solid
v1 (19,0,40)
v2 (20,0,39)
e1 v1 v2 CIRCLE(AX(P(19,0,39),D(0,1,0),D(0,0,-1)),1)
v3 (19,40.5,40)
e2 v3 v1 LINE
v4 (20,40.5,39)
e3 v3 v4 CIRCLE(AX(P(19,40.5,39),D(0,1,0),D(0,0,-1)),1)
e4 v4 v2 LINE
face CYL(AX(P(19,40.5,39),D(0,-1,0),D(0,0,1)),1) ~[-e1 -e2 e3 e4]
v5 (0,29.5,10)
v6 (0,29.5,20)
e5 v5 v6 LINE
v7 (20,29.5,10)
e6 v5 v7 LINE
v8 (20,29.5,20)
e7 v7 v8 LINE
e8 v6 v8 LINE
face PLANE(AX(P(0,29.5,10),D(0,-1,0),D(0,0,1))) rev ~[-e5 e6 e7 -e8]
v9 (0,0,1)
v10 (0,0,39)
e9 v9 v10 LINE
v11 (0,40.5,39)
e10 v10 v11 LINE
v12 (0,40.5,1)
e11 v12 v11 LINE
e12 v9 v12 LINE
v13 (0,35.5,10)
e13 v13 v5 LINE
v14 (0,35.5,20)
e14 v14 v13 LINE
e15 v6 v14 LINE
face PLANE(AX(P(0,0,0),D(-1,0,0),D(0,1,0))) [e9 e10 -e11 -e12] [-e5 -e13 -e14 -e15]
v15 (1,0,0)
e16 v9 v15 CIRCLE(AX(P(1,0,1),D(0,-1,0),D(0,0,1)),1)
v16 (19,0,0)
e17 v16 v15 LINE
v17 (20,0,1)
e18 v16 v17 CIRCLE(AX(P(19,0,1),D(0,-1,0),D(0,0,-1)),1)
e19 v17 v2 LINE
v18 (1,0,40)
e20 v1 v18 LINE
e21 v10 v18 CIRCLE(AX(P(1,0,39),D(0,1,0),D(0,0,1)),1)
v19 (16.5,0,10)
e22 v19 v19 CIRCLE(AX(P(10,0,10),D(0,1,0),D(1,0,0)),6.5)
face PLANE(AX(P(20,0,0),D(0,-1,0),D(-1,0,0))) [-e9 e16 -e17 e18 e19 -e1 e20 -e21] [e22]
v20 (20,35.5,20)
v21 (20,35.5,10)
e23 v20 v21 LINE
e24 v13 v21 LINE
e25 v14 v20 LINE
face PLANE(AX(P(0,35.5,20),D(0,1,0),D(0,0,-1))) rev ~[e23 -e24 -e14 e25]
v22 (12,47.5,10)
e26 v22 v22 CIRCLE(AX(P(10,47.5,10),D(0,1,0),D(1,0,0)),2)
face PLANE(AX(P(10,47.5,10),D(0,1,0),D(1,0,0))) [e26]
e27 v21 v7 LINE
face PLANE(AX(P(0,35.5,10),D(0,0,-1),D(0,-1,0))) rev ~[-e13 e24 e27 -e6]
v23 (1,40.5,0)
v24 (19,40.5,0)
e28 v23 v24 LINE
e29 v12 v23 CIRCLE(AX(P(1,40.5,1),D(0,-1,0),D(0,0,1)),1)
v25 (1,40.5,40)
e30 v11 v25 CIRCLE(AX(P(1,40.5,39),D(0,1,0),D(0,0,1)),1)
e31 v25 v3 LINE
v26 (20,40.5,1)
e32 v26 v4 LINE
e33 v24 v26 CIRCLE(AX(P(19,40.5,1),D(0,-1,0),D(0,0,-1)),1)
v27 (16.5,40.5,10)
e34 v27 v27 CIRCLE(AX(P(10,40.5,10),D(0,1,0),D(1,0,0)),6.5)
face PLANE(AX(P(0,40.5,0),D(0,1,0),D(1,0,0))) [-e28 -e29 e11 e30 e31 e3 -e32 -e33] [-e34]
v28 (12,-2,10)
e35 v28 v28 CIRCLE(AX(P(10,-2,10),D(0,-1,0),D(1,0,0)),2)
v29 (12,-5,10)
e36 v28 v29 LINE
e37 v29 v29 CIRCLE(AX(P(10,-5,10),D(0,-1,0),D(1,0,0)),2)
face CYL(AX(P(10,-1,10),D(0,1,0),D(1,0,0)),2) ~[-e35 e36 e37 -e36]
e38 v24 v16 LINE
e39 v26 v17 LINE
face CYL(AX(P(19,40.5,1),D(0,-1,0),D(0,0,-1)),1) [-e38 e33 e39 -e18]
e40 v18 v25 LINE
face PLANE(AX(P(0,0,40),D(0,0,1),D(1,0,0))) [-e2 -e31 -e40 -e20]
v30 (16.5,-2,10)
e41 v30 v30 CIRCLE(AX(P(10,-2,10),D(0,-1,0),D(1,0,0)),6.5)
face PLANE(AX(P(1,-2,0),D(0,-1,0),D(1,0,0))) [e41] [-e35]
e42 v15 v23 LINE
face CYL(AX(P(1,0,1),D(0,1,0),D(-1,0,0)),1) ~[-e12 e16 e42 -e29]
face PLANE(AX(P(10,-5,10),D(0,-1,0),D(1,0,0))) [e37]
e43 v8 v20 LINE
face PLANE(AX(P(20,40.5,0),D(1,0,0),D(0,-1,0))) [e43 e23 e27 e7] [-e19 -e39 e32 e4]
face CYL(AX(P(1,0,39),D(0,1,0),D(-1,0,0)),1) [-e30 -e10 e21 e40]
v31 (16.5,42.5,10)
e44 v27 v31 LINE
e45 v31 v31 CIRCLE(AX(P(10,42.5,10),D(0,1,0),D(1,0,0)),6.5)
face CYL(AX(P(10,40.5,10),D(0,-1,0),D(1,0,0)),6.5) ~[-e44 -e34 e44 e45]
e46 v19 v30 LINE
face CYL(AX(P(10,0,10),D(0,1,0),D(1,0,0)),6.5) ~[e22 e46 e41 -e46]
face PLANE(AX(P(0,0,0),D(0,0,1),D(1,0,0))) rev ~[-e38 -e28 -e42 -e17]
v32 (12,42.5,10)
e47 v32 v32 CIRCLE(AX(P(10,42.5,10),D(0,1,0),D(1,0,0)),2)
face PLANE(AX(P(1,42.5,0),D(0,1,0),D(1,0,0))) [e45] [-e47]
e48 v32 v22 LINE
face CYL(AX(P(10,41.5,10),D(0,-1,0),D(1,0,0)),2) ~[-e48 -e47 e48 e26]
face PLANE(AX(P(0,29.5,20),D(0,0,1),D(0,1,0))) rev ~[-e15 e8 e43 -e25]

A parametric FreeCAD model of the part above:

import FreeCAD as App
import Part
import Sketcher

V = App.Vector
Q = App.Units.Quantity


def edges_at(feature, points):
    """Names of the edges that pass closest to the given points."""
    edges = feature.Shape.Edges
    near = lambda p: min(range(len(edges)), key=lambda i: edges[i].distToShape(Part.Vertex(*p))[0])
    return sorted({f"Edge{near(p) + 1}" for p in points})


def add_polygon(sketch, points):
    """Adds a closed chain of lines whose ends are joined by coincident constraints."""
    first, n = sketch.GeometryCount, len(points)
    for a, b in zip(points, points[1:] + points[:1]):
        sketch.addGeometry(Part.LineSegment(App.Vector(*a, 0), App.Vector(*b, 0)), False)
    for i in range(n):
        sketch.addConstraint(Sketcher.Constraint("Coincident", first + i, 2, first + (i + 1) % n, 1))

doc = App.newDocument("Part")
body = doc.addObject("PartDesign::Body", "Body")

# Sketch on XY plane
sketch1 = body.newObject("Sketcher::SketchObject", "Sketch")
sketch1.AttachmentSupport = (doc.getObject("XY_Plane"), [""])
sketch1.MapMode = "FlatFace"
add_polygon(sketch1, [(0, 40.5), (0, 0), (20, 0), (20, 40.5)])  # lines 0-3
sketch1.addConstraint(Sketcher.Constraint("Vertical", 0))
sketch1.addConstraint(Sketcher.Constraint("Horizontal", 1))
sketch1.addConstraint(Sketcher.Constraint("Vertical", 2))
sketch1.addConstraint(Sketcher.Constraint("Horizontal", 3))
sketch1.addConstraint(Sketcher.Constraint("Coincident", 0, 2, -1, 1))
sketch1.addConstraint(Sketcher.Constraint("DistanceX", 1, 1, 1, 2, Q("20 mm")))
sketch1.addConstraint(Sketcher.Constraint("DistanceY", 0, 2, 0, 1, Q("40.5 mm")))
pad1 = body.newObject("PartDesign::Pad", "Pad")
pad1.Profile = sketch1
pad1.Length = 40

# Sketch on XZ plane
sketch2 = body.newObject("Sketcher::SketchObject", "Sketch001")
sketch2.AttachmentSupport = (doc.getObject("XZ_Plane"), [""])
sketch2.MapMode = "FlatFace"
sketch2.AttachmentOffset = App.Placement(V(0, 0, -40.5), App.Rotation())
sketch2.addGeometry(Part.Circle(V(10, 10, 0), V(0, 0, 1), 5), False)
sketch2.addConstraint(Sketcher.Constraint("Diameter", 0, Q("10 mm")))
sketch2.addConstraint(Sketcher.Constraint("DistanceX", -1, 1, 0, 3, Q("10 mm")))
sketch2.addConstraint(Sketcher.Constraint("DistanceY", -1, 1, 0, 3, Q("10 mm")))
pad2 = body.newObject("PartDesign::Pad", "Pad001")
pad2.Profile = sketch2
pad2.Length = 1
pad2.Reversed = True

# Sketch on XZ plane
sketch3 = body.newObject("Sketcher::SketchObject", "Sketch002")
sketch3.AttachmentSupport = (doc.getObject("XZ_Plane"), [""])
sketch3.MapMode = "FlatFace"
sketch3.AttachmentOffset = App.Placement(V(0, 0, -41.5), App.Rotation())
sketch3.addGeometry(Part.Circle(V(10, 10, 0), V(0, 0, 1), 2), False)
sketch3.addConstraint(Sketcher.Constraint("Diameter", 0, Q("4 mm")))
sketch3.addConstraint(Sketcher.Constraint("DistanceX", -1, 1, 0, 3, Q("10 mm")))
sketch3.addConstraint(Sketcher.Constraint("DistanceY", -1, 1, 0, 3, Q("10 mm")))
pad3 = body.newObject("PartDesign::Pad", "Pad002")
pad3.Profile = sketch3
pad3.Length = 6
pad3.Reversed = True
doc.recompute()

fillet = body.newObject("PartDesign::Fillet", "Fillet")
fillet.Base = (pad3, edges_at(pad3, [
    (0, 20.25, 40),
    (20, 20.25, 40),
    (20, 20.25, 0),
    (0, 20.25, 0),
]))
fillet.Radius = 1

# Sketch on XZ plane
sketch4 = body.newObject("Sketcher::SketchObject", "Sketch003")
sketch4.AttachmentSupport = (doc.getObject("XZ_Plane"), [""])
sketch4.MapMode = "FlatFace"
sketch4.addGeometry(Part.Circle(V(10, 10, 0), V(0, 0, 1), 5), False)
sketch4.addConstraint(Sketcher.Constraint("Diameter", 0, Q("10 mm")))
sketch4.addConstraint(Sketcher.Constraint("DistanceX", -1, 1, 0, 3, Q("10 mm")))
sketch4.addConstraint(Sketcher.Constraint("DistanceY", -1, 1, 0, 3, Q("10 mm")))
pad4 = body.newObject("PartDesign::Pad", "Pad003")
pad4.Profile = sketch4
pad4.Length = 1

# Sketch on XZ plane
sketch5 = body.newObject("Sketcher::SketchObject", "Sketch004")
sketch5.AttachmentSupport = (doc.getObject("XZ_Plane"), [""])
sketch5.MapMode = "FlatFace"
sketch5.AttachmentOffset = App.Placement(V(0, 0, 1), App.Rotation())
sketch5.addGeometry(Part.Circle(V(10, 10, 0), V(0, 0, 1), 2), False)
sketch5.addConstraint(Sketcher.Constraint("Diameter", 0, Q("4 mm")))
sketch5.addConstraint(Sketcher.Constraint("DistanceX", -1, 1, 0, 3, Q("10 mm")))
sketch5.addConstraint(Sketcher.Constraint("DistanceY", -1, 1, 0, 3, Q("10 mm")))
pad5 = body.newObject("PartDesign::Pad", "Pad004")
pad5.Profile = sketch5
pad5.Length = 4

# Sketch on YZ plane
sketch6 = body.newObject("Sketcher::SketchObject", "Sketch005")
sketch6.AttachmentSupport = (doc.getObject("YZ_Plane"), [""])
sketch6.MapMode = "FlatFace"
add_polygon(sketch6, [(35.5, 20), (35.5, 10), (29.5, 10), (29.5, 20)])  # lines 0-3
sketch6.addConstraint(Sketcher.Constraint("Vertical", 0))
sketch6.addConstraint(Sketcher.Constraint("Horizontal", 1))
sketch6.addConstraint(Sketcher.Constraint("Vertical", 2))
sketch6.addConstraint(Sketcher.Constraint("Horizontal", 3))
sketch6.addConstraint(Sketcher.Constraint("DistanceX", 1, 2, 1, 1, Q("6 mm")))
sketch6.addConstraint(Sketcher.Constraint("DistanceY", 0, 2, 0, 1, Q("10 mm")))
sketch6.addConstraint(Sketcher.Constraint("DistanceY", -1, 1, 0, 2, Q("10 mm")))
sketch6.addConstraint(Sketcher.Constraint("DistanceX", -1, 1, 0, 2, Q("35.5 mm")))
pocket1 = body.newObject("PartDesign::Pocket", "Pocket")
pocket1.Profile = sketch6
pocket1.Type = "UpToFirst"
pocket1.Reversed = True

# Sketch on XZ plane
sketch7 = body.newObject("Sketcher::SketchObject", "Sketch006")
sketch7.AttachmentSupport = (doc.getObject("XZ_Plane"), [""])
sketch7.MapMode = "FlatFace"
sketch7.addGeometry(Part.Circle(V(10, 10, 0), V(0, 0, 1), 6.5), False)
sketch7.addGeometry(Part.Circle(V(10, 10, 0), V(0, 0, 1), 2), False)
sketch7.addConstraint(Sketcher.Constraint("Coincident", 1, 3, 0, 3))
sketch7.addConstraint(Sketcher.Constraint("Diameter", 0, Q("13 mm")))
sketch7.addConstraint(Sketcher.Constraint("Diameter", 1, Q("4 mm")))
sketch7.addConstraint(Sketcher.Constraint("DistanceX", -1, 1, 0, 3, Q("10 mm")))
sketch7.addConstraint(Sketcher.Constraint("DistanceY", -1, 1, 0, 3, Q("10 mm")))
pad6 = body.newObject("PartDesign::Pad", "Pad005")
pad6.Profile = sketch7
pad6.Length = 2

# Sketch on XZ plane
sketch8 = body.newObject("Sketcher::SketchObject", "Sketch007")
sketch8.AttachmentSupport = (doc.getObject("XZ_Plane"), [""])
sketch8.MapMode = "FlatFace"
sketch8.AttachmentOffset = App.Placement(V(0, 0, -40.5), App.Rotation())
sketch8.addGeometry(Part.Circle(V(10, 10, 0), V(0, 0, 1), 6.5), False)
sketch8.addGeometry(Part.Circle(V(10, 10, 0), V(0, 0, 1), 2), False)
sketch8.addConstraint(Sketcher.Constraint("Coincident", 1, 3, 0, 3))
sketch8.addConstraint(Sketcher.Constraint("Diameter", 0, Q("13 mm")))
sketch8.addConstraint(Sketcher.Constraint("Diameter", 1, Q("4 mm")))
sketch8.addConstraint(Sketcher.Constraint("DistanceX", -1, 1, 0, 3, Q("10 mm")))
sketch8.addConstraint(Sketcher.Constraint("DistanceY", -1, 1, 0, 3, Q("10 mm")))
pad7 = body.newObject("PartDesign::Pad", "Pad006")
pad7.Profile = sketch8
pad7.Length = 2
pad7.Reversed = True

doc.recompute()
